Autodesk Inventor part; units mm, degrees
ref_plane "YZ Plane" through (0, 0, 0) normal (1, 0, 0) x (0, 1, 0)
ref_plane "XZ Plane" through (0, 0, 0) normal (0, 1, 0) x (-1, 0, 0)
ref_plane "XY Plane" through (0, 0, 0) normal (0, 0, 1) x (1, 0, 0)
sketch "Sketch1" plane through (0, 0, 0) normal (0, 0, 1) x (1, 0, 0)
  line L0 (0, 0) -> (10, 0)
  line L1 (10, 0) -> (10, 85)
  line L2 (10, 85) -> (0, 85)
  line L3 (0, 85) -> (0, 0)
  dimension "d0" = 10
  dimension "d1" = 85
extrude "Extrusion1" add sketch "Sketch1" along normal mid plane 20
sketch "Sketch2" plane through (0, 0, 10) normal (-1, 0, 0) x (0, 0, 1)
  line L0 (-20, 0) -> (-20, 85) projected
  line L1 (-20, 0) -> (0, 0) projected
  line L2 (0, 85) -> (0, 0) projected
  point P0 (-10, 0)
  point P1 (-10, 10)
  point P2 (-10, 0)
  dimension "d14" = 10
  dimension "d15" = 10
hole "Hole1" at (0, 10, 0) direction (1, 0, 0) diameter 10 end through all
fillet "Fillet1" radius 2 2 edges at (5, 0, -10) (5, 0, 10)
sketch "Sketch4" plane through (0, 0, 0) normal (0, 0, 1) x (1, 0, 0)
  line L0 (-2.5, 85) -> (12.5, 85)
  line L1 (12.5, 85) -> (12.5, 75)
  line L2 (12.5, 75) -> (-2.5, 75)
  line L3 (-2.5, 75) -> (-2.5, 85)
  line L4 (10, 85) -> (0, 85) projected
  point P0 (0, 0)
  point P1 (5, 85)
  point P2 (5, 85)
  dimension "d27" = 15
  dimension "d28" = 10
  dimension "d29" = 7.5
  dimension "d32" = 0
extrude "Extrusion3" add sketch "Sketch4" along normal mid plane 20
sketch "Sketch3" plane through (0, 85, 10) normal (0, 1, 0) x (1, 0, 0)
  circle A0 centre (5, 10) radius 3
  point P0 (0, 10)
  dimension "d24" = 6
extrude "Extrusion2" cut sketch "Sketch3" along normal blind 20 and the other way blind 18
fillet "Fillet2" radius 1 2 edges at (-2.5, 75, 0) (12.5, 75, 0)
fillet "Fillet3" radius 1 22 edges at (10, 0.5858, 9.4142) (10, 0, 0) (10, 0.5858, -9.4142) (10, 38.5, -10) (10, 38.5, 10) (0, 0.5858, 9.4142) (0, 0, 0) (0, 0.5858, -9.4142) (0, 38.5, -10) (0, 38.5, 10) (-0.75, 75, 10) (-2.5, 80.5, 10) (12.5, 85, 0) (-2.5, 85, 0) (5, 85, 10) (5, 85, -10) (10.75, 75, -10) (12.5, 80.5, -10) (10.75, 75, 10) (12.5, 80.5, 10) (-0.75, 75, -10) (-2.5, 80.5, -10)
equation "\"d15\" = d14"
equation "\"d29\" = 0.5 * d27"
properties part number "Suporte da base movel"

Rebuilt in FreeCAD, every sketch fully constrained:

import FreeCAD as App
import Part
import Sketcher

V = App.Vector
Q = App.Units.Quantity


def edges_at(feature, points):
    """Names of the edges that pass closest to the given points."""
    edges = feature.Shape.Edges
    near = lambda p: min(range(len(edges)), key=lambda i: edges[i].distToShape(Part.Vertex(*p))[0])
    return sorted({f"Edge{near(p) + 1}" for p in points})

doc = App.newDocument("Part")
body = doc.addObject("PartDesign::Body", "Body")

sketch1 = body.newObject("Sketcher::SketchObject", "Sketch")
sketch1.AttachmentSupport = (doc.getObject("XY_Plane"), [""])
sketch1.MapMode = "FlatFace"
sketch1.addGeometry([
    Part.LineSegment(V(0, 85, 0), V(0, 0, 0)),
    Part.LineSegment(V(0, 0, 0), V(10, 0, 0)),
    Part.LineSegment(V(10, 0, 0), V(10, 85, 0)),
    Part.LineSegment(V(10, 85, 0), V(0, 85, 0)),
], False)
sketch1.addConstraint([
    Sketcher.Constraint("Coincident", 0, 2, 1, 1),
    Sketcher.Constraint("Coincident", 1, 2, 2, 1),
    Sketcher.Constraint("Coincident", 2, 2, 3, 1),
    Sketcher.Constraint("Coincident", 3, 2, 0, 1),
    Sketcher.Constraint("Vertical", 0),
    Sketcher.Constraint("Horizontal", 1),
    Sketcher.Constraint("Vertical", 2),
    Sketcher.Constraint("Horizontal", 3),
    Sketcher.Constraint("Coincident", 0, 2, -1, 1),
    Sketcher.Constraint("DistanceX", 1, 1, 1, 2, Q("10 mm")),
    Sketcher.Constraint("DistanceY", 0, 2, 0, 1, Q("85 mm")),
])
pad1 = body.newObject("PartDesign::Pad", "Pad")
pad1.Profile = sketch1
pad1.Length = 20
pad1.Midplane = True

sketch2 = body.newObject("Sketcher::SketchObject", "Sketch001")
sketch2.AttachmentSupport = (doc.getObject("YZ_Plane"), [""])
sketch2.MapMode = "FlatFace"
sketch2.addGeometry(Part.Circle(V(10, 0, 0), V(0, 0, 1), 5), False)
sketch2.addConstraint([
    Sketcher.Constraint("PointOnObject", 0, 3, -1),
    Sketcher.Constraint("Diameter", 0, Q("10 mm")),
    Sketcher.Constraint("DistanceX", -1, 1, 0, 3, Q("10 mm")),
])
doc.recompute()
hole = body.newObject("PartDesign::Hole", "Hole")
hole.Profile = sketch2
hole.ThreadType = "None"
hole.Diameter = 10
hole.DepthType = "ThroughAll"
hole.Reversed = True
doc.recompute()

fillet = body.newObject("PartDesign::Fillet", "Fillet")
fillet.Base = (hole, edges_at(hole, [(5, 0, -10), (5, 0, 10)]))
fillet.Radius = 2

sketch3 = body.newObject("Sketcher::SketchObject", "Sketch002")
sketch3.AttachmentSupport = (doc.getObject("XY_Plane"), [""])
sketch3.MapMode = "FlatFace"
sketch3.addGeometry([
    Part.LineSegment(V(12, 85, 0), V(-2, 85, 0)),
    Part.LineSegment(V(-2, 85, 0), V(-2, 75, 0)),
    Part.LineSegment(V(-2, 75, 0), V(12, 75, 0)),
    Part.LineSegment(V(12, 75, 0), V(12, 85, 0)),
], False)
sketch3.addConstraint([
    Sketcher.Constraint("Coincident", 0, 2, 1, 1),
    Sketcher.Constraint("Coincident", 1, 2, 2, 1),
    Sketcher.Constraint("Coincident", 2, 2, 3, 1),
    Sketcher.Constraint("Coincident", 3, 2, 0, 1),
    Sketcher.Constraint("Horizontal", 0),
    Sketcher.Constraint("Vertical", 1),
    Sketcher.Constraint("Horizontal", 2),
    Sketcher.Constraint("Vertical", 3),
    Sketcher.Constraint("DistanceX", 0, 2, 0, 1, Q("15 mm")),
    Sketcher.Constraint("DistanceY", 1, 2, 1, 1, Q("10 mm")),
    Sketcher.Constraint("DistanceY", -1, 1, 0, 2, Q("85 mm")),
    Sketcher.Constraint("DistanceX", 0, 2, -1, 1, Q("2.5 mm")),
])
pad2 = body.newObject("PartDesign::Pad", "Pad001")
pad2.Profile = sketch3
pad2.Length = 20
pad2.Midplane = True

sketch4 = body.newObject("Sketcher::SketchObject", "Sketch003")
sketch4.AttachmentSupport = (doc.getObject("XZ_Plane"), [""])
sketch4.MapMode = "FlatFace"
sketch4.AttachmentOffset = App.Placement(V(0, 0, -85), App.Rotation())
sketch4.addGeometry(Part.Circle(V(5, 0, 0), V(0, 0, 1), 3), False)
sketch4.addConstraint([
    Sketcher.Constraint("PointOnObject", 0, 3, -1),
    Sketcher.Constraint("Diameter", 0, Q("6 mm")),
    Sketcher.Constraint("DistanceX", -1, 1, 0, 3, Q("5 mm")),
])
pocket1 = body.newObject("PartDesign::Pocket", "Pocket")
pocket1.Profile = sketch4
pocket1.Type = "TwoLengths"
pocket1.Length = 20
pocket1.Length2 = 18
doc.recompute()

fillet2 = body.newObject("PartDesign::Fillet", "Fillet001")
fillet2.Base = (pocket1, edges_at(pocket1, [(-2.5, 75, 0), (12.5, 75, 0)]))
fillet2.Radius = 1
doc.recompute()

fillet3 = body.newObject("PartDesign::Fillet", "Fillet002")
fillet3.Base = (fillet2, edges_at(fillet2, [
    (10, 0.586, 9.414),
    (10, 0, 0),
    (10, 0.586, -9.414),
    (10, 38.5, -10),
    (10, 38.5, 10),
    (0, 0.586, 9.414),
    (0, 0, 0),
    (0, 0.586, -9.414),
    (0, 38.5, -10),
    (0, 38.5, 10),
    (-0.75, 75, 10),
    (-2.5, 80.5, 10),
    (12.5, 85, 0),
    (-2.5, 85, 0),
    (5, 85, 10),
    (5, 85, -10),
    (10.75, 75, -10),
    (12.5, 80.5, -10),
    (10.75, 75, 10),
    (12.5, 80.5, 10),
    (-0.75, 75, -10),
    (-2.5, 80.5, -10),
]))
fillet3.Radius = 1

doc.recompute()
